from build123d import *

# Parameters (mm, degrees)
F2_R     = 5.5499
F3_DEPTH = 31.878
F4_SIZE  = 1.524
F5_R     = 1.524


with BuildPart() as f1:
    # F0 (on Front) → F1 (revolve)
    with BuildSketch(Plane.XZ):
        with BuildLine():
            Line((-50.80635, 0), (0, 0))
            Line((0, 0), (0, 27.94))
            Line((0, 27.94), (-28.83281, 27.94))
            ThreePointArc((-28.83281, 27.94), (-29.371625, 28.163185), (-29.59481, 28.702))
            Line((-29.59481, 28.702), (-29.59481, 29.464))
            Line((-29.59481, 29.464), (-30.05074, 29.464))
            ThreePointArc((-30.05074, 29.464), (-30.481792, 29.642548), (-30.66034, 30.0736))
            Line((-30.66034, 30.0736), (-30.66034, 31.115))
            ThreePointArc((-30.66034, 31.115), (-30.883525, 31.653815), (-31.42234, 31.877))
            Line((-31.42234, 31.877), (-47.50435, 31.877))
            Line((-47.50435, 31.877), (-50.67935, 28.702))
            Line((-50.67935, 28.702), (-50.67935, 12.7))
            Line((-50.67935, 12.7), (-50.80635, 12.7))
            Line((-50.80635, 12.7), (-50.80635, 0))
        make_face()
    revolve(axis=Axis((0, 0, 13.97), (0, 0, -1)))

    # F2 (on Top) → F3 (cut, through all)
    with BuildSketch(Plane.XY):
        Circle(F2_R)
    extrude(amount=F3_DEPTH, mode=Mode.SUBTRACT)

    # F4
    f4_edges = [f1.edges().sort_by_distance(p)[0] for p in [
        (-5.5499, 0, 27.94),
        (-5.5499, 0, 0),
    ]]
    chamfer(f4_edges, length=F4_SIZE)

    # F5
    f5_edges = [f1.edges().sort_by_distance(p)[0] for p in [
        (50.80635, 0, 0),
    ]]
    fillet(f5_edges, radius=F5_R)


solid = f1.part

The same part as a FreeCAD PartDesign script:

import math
import FreeCAD as App
import Part
import Sketcher
Q = App.Units.Quantity


def edges_at(feature, points):
    """Names of the edges that pass closest to the given points."""
    edges = feature.Shape.Edges
    near = lambda p: min(range(len(edges)), key=lambda i: edges[i].distToShape(Part.Vertex(*p))[0])
    return sorted({f"Edge{near(p) + 1}" for p in points})

doc = App.newDocument("Part")
params = doc.addObject("Spreadsheet::Sheet", "Params")
for row, (alias, value) in enumerate([
    ("sketch1_radius", "0.03 in"),
    ("sketch1_height", "1.1 in"),
    ("sketch1_height2", "0.5 in"),
    ("sketch1_radius2", "0.024 in"),
    ("sketch1_height3", "0.03 in"),
    ("revolution_angle", "360 deg"),
    ("sketch2_diameter", "0.437 in"),
    ("chamfer_size", "0.06 in"),
    ("fillet_radius", "0.06 in"),
], start=1):
    params.set(f"A{row}", alias)
    params.set(f"B{row}", "=" + value)
    params.setAlias(f"B{row}", alias)

body = doc.addObject("PartDesign::Body", "Body")

sketch1 = body.newObject("Sketcher::SketchObject", "Sketch")
sketch1.AttachmentSupport = (doc.getObject("XZ_Plane"), [""])
sketch1.MapMode = "FlatFace"
sketch1.addGeometry(Part.LineSegment(App.Vector(-50.80635, 0, 0), App.Vector(0, 0, 0)), False)
sketch1.addGeometry(Part.LineSegment(App.Vector(0, 0, 0), App.Vector(0, 27.94, 0)), False)
sketch1.addGeometry(Part.LineSegment(App.Vector(0, 27.94, 0), App.Vector(-28.83281, 27.94, 0)), False)
sketch1.addGeometry(Part.ArcOfCircle(Part.Circle(App.Vector(-28.832809, 28.702001, 0), App.Vector(0, 0, 1), 0.762001), math.radians(-179.999906), math.radians(-90.000094)), False)
sketch1.addGeometry(Part.LineSegment(App.Vector(-29.59481, 28.702, 0), App.Vector(-29.59481, 29.464, 0)), False)
sketch1.addGeometry(Part.LineSegment(App.Vector(-29.59481, 29.464, 0), App.Vector(-30.05074, 29.464, 0)), False)
sketch1.addGeometry(Part.ArcOfCircle(Part.Circle(App.Vector(-30.050739, 30.073601, 0), App.Vector(0, 0, 1), 0.609601), math.radians(-179.999906), math.radians(-90.000094)), False)
sketch1.addGeometry(Part.LineSegment(App.Vector(-30.66034, 30.0736, 0), App.Vector(-30.66034, 31.115, 0)), False)
sketch1.addGeometry(Part.ArcOfCircle(Part.Circle(App.Vector(-31.422341, 31.114999, 0), App.Vector(0, 0, 1), 0.762001), math.radians(0.000094), math.radians(89.999906)), False)
sketch1.addGeometry(Part.LineSegment(App.Vector(-31.42234, 31.877, 0), App.Vector(-47.50435, 31.877, 0)), False)
sketch1.addGeometry(Part.LineSegment(App.Vector(-47.50435, 31.877, 0), App.Vector(-50.67935, 28.702, 0)), False)
sketch1.addGeometry(Part.LineSegment(App.Vector(-50.67935, 28.702, 0), App.Vector(-50.67935, 12.7, 0)), False)
sketch1.addGeometry(Part.LineSegment(App.Vector(-50.67935, 12.7, 0), App.Vector(-50.80635, 12.7, 0)), False)
sketch1.addGeometry(Part.LineSegment(App.Vector(-50.80635, 12.7, 0), App.Vector(-50.80635, 0, 0)), False)
sketch1.addConstraint(Sketcher.Constraint("Coincident", 0, 2, 1, 1))
sketch1.addConstraint(Sketcher.Constraint("Coincident", 1, 2, 2, 1))
sketch1.addConstraint(Sketcher.Constraint("Tangent", 2, 2, 3, 2))
sketch1.addConstraint(Sketcher.Constraint("Tangent", 3, 1, 4, 1))
sketch1.addConstraint(Sketcher.Constraint("Coincident", 4, 2, 5, 1))
sketch1.addConstraint(Sketcher.Constraint("Tangent", 5, 2, 6, 2))
sketch1.addConstraint(Sketcher.Constraint("Tangent", 6, 1, 7, 1))
sketch1.addConstraint(Sketcher.Constraint("Tangent", 7, 2, 8, 1))
sketch1.addConstraint(Sketcher.Constraint("Tangent", 8, 2, 9, 1))
sketch1.addConstraint(Sketcher.Constraint("Coincident", 9, 2, 10, 1))
sketch1.addConstraint(Sketcher.Constraint("Coincident", 10, 2, 11, 1))
sketch1.addConstraint(Sketcher.Constraint("Coincident", 11, 2, 12, 1))
sketch1.addConstraint(Sketcher.Constraint("Coincident", 12, 2, 13, 1))
sketch1.addConstraint(Sketcher.Constraint("Coincident", 13, 2, 0, 1))
sketch1.addConstraint(Sketcher.Constraint("Horizontal", 0))
sketch1.addConstraint(Sketcher.Constraint("Vertical", 1))
sketch1.addConstraint(Sketcher.Constraint("Horizontal", 2))
sketch1.addConstraint(Sketcher.Constraint("Vertical", 4))
sketch1.addConstraint(Sketcher.Constraint("Horizontal", 5))
sketch1.addConstraint(Sketcher.Constraint("Vertical", 7))
sketch1.addConstraint(Sketcher.Constraint("Horizontal", 9))
sketch1.addConstraint(Sketcher.Constraint("Vertical", 11))
sketch1.addConstraint(Sketcher.Constraint("Horizontal", 12))
sketch1.addConstraint(Sketcher.Constraint("Vertical", 13))
sketch1.addConstraint(Sketcher.Constraint("Coincident", 0, 2, -1, 1))
sketch1.addConstraint(Sketcher.Constraint("Equal", 3, 8))
sketch1.addConstraint(Sketcher.Constraint("Horizontal", 3, 1, 10, 2))
sketch1.addConstraint(Sketcher.Constraint("Radius", 3, Q("0.03 in")))
sketch1.addConstraint(Sketcher.Constraint("DistanceY", 1, 1, 1, 2, Q("1.1 in")))
sketch1.addConstraint(Sketcher.Constraint("DistanceY", 13, 2, 13, 1, Q("0.5 in")))
sketch1.addConstraint(Sketcher.Constraint("Angle", 10, Q("-135 deg")))
sketch1.addConstraint(Sketcher.Constraint("Radius", 6, Q("0.024 in")))
sketch1.addConstraint(Sketcher.Constraint("DistanceY", 4, 1, 4, 2, Q("0.03 in")))
sketch1.addConstraint(Sketcher.Constraint("DistanceX", 12, 2, 12, 1, Q("0.005 in")))
sketch1.addConstraint(Sketcher.Constraint("DistanceY", 7, 1, 7, 2, Q("0.041 in")))
sketch1.addConstraint(Sketcher.Constraint("DistanceX", 6, 3, -1, 1, Q("1.1831 in")))
sketch1.addConstraint(Sketcher.Constraint("DistanceX", 11, 2, 3, 1, Q("0.8301 in")))
sketch1.addConstraint(Sketcher.Constraint("DistanceX", 0, 1, 0, 2, 50.80635))
sketch1.setExpression("Constraints[27]", "Params.sketch1_radius")
sketch1.setExpression("Constraints[28]", "Params.sketch1_height")
sketch1.setExpression("Constraints[29]", "Params.sketch1_height2")
sketch1.setExpression("Constraints[31]", "Params.sketch1_radius2")
sketch1.setExpression("Constraints[32]", "Params.sketch1_height3")
revolution = body.newObject("PartDesign::Revolution", "Revolution")
revolution.Profile = sketch1
revolution.ReferenceAxis = (sketch1, ["V_Axis"])
revolution.setExpression("Angle", "Params.revolution_angle")

sketch2 = body.newObject("Sketcher::SketchObject", "Sketch001")
sketch2.AttachmentSupport = (doc.getObject("XY_Plane"), [""])
sketch2.MapMode = "FlatFace"
sketch2.addGeometry(Part.Circle(App.Vector(0, 0, 0), App.Vector(0, 0, 1), 5.5499), False)
sketch2.addConstraint(Sketcher.Constraint("Coincident", 0, 3, -1, 1))
sketch2.addConstraint(Sketcher.Constraint("Diameter", 0, Q("0.437 in")))
sketch2.setExpression("Constraints[1]", "Params.sketch2_diameter")
pocket1 = body.newObject("PartDesign::Pocket", "Pocket")
pocket1.Profile = sketch2
pocket1.Type = "ThroughAll"
pocket1.Reversed = True
doc.recompute()

chamfer = body.newObject("PartDesign::Chamfer", "Chamfer")
chamfer.Base = (pocket1, edges_at(pocket1, [(-5.55, 0, 27.94), (-5.55, 0, 0)]))
chamfer.setExpression("Size", "Params.chamfer_size")
doc.recompute()

fillet = body.newObject("PartDesign::Fillet", "Fillet")
fillet.Base = (chamfer, edges_at(chamfer, [(50.806, 0, 0)]))
fillet.setExpression("Radius", "Params.fillet_radius")

doc.recompute()
